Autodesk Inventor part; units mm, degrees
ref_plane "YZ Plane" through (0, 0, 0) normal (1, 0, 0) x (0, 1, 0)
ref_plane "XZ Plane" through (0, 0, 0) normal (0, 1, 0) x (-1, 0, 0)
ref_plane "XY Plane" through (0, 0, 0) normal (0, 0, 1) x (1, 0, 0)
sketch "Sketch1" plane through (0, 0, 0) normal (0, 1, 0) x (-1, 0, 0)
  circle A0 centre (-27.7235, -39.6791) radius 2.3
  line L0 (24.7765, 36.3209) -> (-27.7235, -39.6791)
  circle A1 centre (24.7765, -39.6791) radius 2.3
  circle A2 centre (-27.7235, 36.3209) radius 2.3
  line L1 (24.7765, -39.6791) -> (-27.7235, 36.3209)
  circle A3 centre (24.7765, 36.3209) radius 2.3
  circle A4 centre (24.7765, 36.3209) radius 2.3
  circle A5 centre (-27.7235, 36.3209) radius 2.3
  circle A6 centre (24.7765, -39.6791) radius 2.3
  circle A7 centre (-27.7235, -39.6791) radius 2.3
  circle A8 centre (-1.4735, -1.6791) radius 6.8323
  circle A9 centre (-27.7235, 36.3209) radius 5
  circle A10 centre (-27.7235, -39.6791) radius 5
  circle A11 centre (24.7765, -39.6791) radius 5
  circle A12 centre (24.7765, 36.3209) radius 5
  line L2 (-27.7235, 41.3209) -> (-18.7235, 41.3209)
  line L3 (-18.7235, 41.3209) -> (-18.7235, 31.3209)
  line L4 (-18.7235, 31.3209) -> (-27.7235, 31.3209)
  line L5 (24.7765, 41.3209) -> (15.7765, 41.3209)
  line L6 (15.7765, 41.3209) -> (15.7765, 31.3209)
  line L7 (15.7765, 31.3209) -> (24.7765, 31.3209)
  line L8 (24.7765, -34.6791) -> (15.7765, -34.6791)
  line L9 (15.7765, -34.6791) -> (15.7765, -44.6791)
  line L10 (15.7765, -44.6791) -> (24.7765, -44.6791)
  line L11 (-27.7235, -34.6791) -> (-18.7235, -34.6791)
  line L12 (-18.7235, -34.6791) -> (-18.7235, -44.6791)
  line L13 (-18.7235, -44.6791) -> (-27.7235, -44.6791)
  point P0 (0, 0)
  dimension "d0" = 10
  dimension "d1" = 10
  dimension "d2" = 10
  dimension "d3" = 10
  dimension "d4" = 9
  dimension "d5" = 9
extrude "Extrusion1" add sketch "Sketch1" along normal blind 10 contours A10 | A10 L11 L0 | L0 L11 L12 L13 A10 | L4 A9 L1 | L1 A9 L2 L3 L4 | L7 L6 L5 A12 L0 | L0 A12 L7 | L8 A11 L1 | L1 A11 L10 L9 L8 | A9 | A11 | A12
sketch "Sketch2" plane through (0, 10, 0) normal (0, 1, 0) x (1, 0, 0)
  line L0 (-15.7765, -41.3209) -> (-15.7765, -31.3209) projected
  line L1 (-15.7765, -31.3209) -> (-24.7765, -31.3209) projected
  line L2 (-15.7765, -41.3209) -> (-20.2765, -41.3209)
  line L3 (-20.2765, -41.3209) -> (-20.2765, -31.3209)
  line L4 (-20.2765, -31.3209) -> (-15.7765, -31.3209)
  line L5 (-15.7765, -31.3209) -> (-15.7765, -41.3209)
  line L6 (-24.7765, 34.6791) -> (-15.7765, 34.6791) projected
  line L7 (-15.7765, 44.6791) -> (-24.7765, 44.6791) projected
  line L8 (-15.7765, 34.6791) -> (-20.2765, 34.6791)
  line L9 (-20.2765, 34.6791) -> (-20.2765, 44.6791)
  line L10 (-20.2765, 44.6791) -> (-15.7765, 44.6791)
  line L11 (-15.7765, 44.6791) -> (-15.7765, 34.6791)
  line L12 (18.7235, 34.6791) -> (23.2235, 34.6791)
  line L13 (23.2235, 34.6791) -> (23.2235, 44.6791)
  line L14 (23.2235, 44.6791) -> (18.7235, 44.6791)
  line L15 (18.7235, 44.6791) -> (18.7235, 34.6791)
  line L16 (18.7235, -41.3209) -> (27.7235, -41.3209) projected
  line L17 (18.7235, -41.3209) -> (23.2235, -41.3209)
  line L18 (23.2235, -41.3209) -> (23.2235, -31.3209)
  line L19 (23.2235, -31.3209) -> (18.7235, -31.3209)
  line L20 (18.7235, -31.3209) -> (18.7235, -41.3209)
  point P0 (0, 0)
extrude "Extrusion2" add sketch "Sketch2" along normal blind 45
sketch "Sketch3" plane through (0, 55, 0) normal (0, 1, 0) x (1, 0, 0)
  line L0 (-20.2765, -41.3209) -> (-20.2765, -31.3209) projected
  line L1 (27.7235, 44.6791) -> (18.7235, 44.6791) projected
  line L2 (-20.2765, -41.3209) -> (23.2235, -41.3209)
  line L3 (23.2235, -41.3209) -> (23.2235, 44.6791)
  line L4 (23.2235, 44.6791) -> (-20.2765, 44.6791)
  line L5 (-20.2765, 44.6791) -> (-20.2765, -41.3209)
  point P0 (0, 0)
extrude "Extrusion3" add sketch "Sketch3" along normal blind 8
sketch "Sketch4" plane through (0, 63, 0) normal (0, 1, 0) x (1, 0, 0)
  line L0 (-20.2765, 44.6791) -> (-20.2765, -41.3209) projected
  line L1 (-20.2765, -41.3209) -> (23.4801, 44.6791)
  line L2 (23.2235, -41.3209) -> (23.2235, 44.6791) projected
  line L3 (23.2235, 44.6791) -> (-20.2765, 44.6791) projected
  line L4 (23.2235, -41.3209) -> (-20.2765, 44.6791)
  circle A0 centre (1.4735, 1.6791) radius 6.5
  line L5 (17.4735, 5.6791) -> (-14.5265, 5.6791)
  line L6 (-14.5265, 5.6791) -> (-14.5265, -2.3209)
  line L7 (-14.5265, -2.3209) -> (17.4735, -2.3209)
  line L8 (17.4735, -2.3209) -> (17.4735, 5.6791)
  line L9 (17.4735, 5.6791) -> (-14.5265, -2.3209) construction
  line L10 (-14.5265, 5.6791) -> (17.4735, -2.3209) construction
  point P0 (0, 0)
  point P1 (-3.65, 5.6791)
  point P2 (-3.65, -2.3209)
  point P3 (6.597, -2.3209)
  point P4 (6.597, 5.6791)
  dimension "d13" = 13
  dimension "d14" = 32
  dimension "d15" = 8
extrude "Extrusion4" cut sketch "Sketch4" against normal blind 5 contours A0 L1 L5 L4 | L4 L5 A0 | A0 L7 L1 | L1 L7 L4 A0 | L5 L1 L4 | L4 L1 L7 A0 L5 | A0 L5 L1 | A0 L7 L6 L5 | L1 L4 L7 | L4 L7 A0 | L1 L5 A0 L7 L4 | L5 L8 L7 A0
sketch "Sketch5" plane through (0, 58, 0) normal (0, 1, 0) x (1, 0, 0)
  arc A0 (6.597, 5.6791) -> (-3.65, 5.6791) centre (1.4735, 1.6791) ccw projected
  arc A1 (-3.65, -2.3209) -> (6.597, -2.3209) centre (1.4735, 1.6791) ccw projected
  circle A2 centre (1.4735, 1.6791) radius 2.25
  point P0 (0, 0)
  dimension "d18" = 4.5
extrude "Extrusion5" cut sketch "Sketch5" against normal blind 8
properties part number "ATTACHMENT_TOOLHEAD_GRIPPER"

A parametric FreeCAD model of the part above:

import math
import FreeCAD as App
import Part
import Sketcher
from FreeCAD import Vector
Q = App.Units.Quantity

doc = App.newDocument("Part")
params = doc.addObject("Spreadsheet::Sheet", "Params")
for row, (alias, value) in enumerate([
    ("sketch1_radius", "5 mm"),
    ("sketch1_width", "9 mm"),
    ("sketch1_diameter", "4.6 mm"),
    ("pad1_length", "10 mm"),
    ("sketch2_height", "10 mm"),
    ("sketch2_width", "4.5 mm"),
    ("pad2_length", "45 mm"),
    ("sketch3_height", "86 mm"),
    ("sketch3_width", "43.5 mm"),
    ("pad3_length", "8 mm"),
    ("sketch4_radius", "6.5 mm"),
    ("sketch4_height", "8 mm"),
    ("pocket1_length", "5 mm"),
    ("sketch5_diameter", "4.5 mm"),
    ("pocket2_length", "8 mm"),
], start=1):
    params.set(f"A{row}", alias)
    params.set(f"B{row}", "=" + value)
    params.setAlias(f"B{row}", alias)

body = doc.addObject("PartDesign::Body", "Body")
body.AllowCompound = True

sketch1 = body.newObject("Sketcher::SketchObject", "Sketch")
sketch1.AttachmentSupport = (doc.getObject("XZ_Plane"), [""])
sketch1.MapMode = "FlatFace"
sketch1.addGeometry(Part.ArcOfCircle(Part.Circle(Vector(27.7, -39.7, 0), Vector(0, 0, 1), 5), math.radians(-90), math.radians(90)), False)
sketch1.addGeometry(Part.LineSegment(Vector(27.7, -44.7, 0), Vector(18.7, -44.7, 0)), False)
sketch1.addGeometry(Part.LineSegment(Vector(18.7, -44.7, 0), Vector(18.7, -34.7, 0)), False)
sketch1.addGeometry(Part.LineSegment(Vector(18.7, -34.7, 0), Vector(27.7, -34.7, 0)), False)
sketch1.addGeometry(Part.Circle(Vector(27.7, -39.7, 0), Vector(0, 0, 1), 2.3), False)
sketch1.addGeometry(Part.LineSegment(Vector(27.7, 31.3, 0), Vector(18.7, 31.3, 0)), False)
sketch1.addGeometry(Part.LineSegment(Vector(18.7, 31.3, 0), Vector(18.7, 41.3, 0)), False)
sketch1.addGeometry(Part.LineSegment(Vector(18.7, 41.3, 0), Vector(27.7, 41.3, 0)), False)
sketch1.addGeometry(Part.ArcOfCircle(Part.Circle(Vector(27.7, 36.3, 0), Vector(0, 0, 1), 5), math.radians(-90), math.radians(90)), False)
sketch1.addGeometry(Part.Circle(Vector(27.7, 36.3, 0), Vector(0, 0, 1), 2.3), False)
sketch1.addGeometry(Part.LineSegment(Vector(-15.8, 31.3, 0), Vector(-24.8, 31.3, 0)), False)
sketch1.addGeometry(Part.ArcOfCircle(Part.Circle(Vector(-24.8, 36.3, 0), Vector(0, 0, 1), 5), math.radians(90), math.radians(270)), False)
sketch1.addGeometry(Part.LineSegment(Vector(-24.8, 41.3, 0), Vector(-15.8, 41.3, 0)), False)
sketch1.addGeometry(Part.LineSegment(Vector(-15.8, 41.3, 0), Vector(-15.8, 31.3, 0)), False)
sketch1.addGeometry(Part.Circle(Vector(-24.8, 36.3, 0), Vector(0, 0, 1), 2.3), False)
sketch1.addGeometry(Part.LineSegment(Vector(-24.8, -34.7, 0), Vector(-15.8, -34.7, 0)), False)
sketch1.addGeometry(Part.LineSegment(Vector(-15.8, -34.7, 0), Vector(-15.8, -44.7, 0)), False)
sketch1.addGeometry(Part.LineSegment(Vector(-15.8, -44.7, 0), Vector(-24.8, -44.7, 0)), False)
sketch1.addGeometry(Part.ArcOfCircle(Part.Circle(Vector(-24.8, -39.7, 0), Vector(0, 0, 1), 5), math.radians(90), math.radians(270)), False)
sketch1.addGeometry(Part.Circle(Vector(-24.8, -39.7, 0), Vector(0, 0, 1), 2.3), False)
sketch1.addConstraint(Sketcher.Constraint("Tangent", 0, 1, 1, 1))
sketch1.addConstraint(Sketcher.Constraint("Coincident", 1, 2, 2, 1))
sketch1.addConstraint(Sketcher.Constraint("Coincident", 2, 2, 3, 1))
sketch1.addConstraint(Sketcher.Constraint("Tangent", 3, 2, 0, 2))
sketch1.addConstraint(Sketcher.Constraint("Coincident", 5, 2, 6, 1))
sketch1.addConstraint(Sketcher.Constraint("Coincident", 6, 2, 7, 1))
sketch1.addConstraint(Sketcher.Constraint("Tangent", 7, 2, 8, 2))
sketch1.addConstraint(Sketcher.Constraint("Tangent", 8, 1, 5, 1))
sketch1.addConstraint(Sketcher.Constraint("Tangent", 10, 2, 11, 2))
sketch1.addConstraint(Sketcher.Constraint("Tangent", 11, 1, 12, 1))
sketch1.addConstraint(Sketcher.Constraint("Coincident", 12, 2, 13, 1))
sketch1.addConstraint(Sketcher.Constraint("Coincident", 13, 2, 10, 1))
sketch1.addConstraint(Sketcher.Constraint("Coincident", 15, 2, 16, 1))
sketch1.addConstraint(Sketcher.Constraint("Coincident", 16, 2, 17, 1))
sketch1.addConstraint(Sketcher.Constraint("Tangent", 17, 2, 18, 2))
sketch1.addConstraint(Sketcher.Constraint("Tangent", 18, 1, 15, 1))
sketch1.addConstraint(Sketcher.Constraint("Horizontal", 1))
sketch1.addConstraint(Sketcher.Constraint("Vertical", 2))
sketch1.addConstraint(Sketcher.Constraint("Horizontal", 3))
sketch1.addConstraint(Sketcher.Constraint("Horizontal", 5))
sketch1.addConstraint(Sketcher.Constraint("Vertical", 6))
sketch1.addConstraint(Sketcher.Constraint("Horizontal", 7))
sketch1.addConstraint(Sketcher.Constraint("Horizontal", 10))
sketch1.addConstraint(Sketcher.Constraint("Horizontal", 12))
sketch1.addConstraint(Sketcher.Constraint("Vertical", 13))
sketch1.addConstraint(Sketcher.Constraint("Horizontal", 15))
sketch1.addConstraint(Sketcher.Constraint("Vertical", 16))
sketch1.addConstraint(Sketcher.Constraint("Horizontal", 17))
sketch1.addConstraint(Sketcher.Constraint("Coincident", 4, 3, 0, 3))
sketch1.addConstraint(Sketcher.Constraint("Coincident", 9, 3, 8, 3))
sketch1.addConstraint(Sketcher.Constraint("Coincident", 14, 3, 11, 3))
sketch1.addConstraint(Sketcher.Constraint("Coincident", 19, 3, 18, 3))
sketch1.addConstraint(Sketcher.Constraint("Equal", 0, 8))
sketch1.addConstraint(Sketcher.Constraint("Equal", 4, 9))
sketch1.addConstraint(Sketcher.Constraint("Equal", 8, 11))
sketch1.addConstraint(Sketcher.Constraint("Equal", 9, 14))
sketch1.addConstraint(Sketcher.Constraint("Equal", 11, 18))
sketch1.addConstraint(Sketcher.Constraint("Equal", 14, 19))
sketch1.addConstraint(Sketcher.Constraint("Horizontal", 9, 3, 11, 3))
sketch1.addConstraint(Sketcher.Constraint("Horizontal", 4, 3, 18, 3))
sketch1.addConstraint(Sketcher.Constraint("Vertical", 4, 3, 8, 3))
sketch1.addConstraint(Sketcher.Constraint("Vertical", 14, 3, 18, 3))
sketch1.addConstraint(Sketcher.Constraint("Vertical", 2, 2, 5, 2))
sketch1.addConstraint(Sketcher.Constraint("Vertical", 13, 2, 15, 2))
sketch1.addConstraint(Sketcher.Constraint("Equal", 7, 10))
sketch1.addConstraint(Sketcher.Constraint("Radius", 0, Q("5 mm")))
sketch1.addConstraint(Sketcher.Constraint("DistanceX", 1, 2, 1, 1, Q("9 mm")))
sketch1.addConstraint(Sketcher.Constraint("Diameter", 4, Q("4.6 mm")))
sketch1.addConstraint(Sketcher.Constraint("DistanceY", 0, 3, 8, 3, Q("76 mm")))
sketch1.addConstraint(Sketcher.Constraint("DistanceX", 11, 3, 8, 3, Q("52.5 mm")))
sketch1.addConstraint(Sketcher.Constraint("DistanceY", 0, 3, -1, 1, Q("39.679 mm")))
sketch1.addConstraint(Sketcher.Constraint("DistanceX", -1, 1, 0, 3, Q("27.7235 mm")))
sketch1.setExpression("Constraints[45]", "Params.sketch1_radius")
sketch1.setExpression("Constraints[46]", "Params.sketch1_width")
sketch1.setExpression("Constraints[47]", "Params.sketch1_diameter")
pad1 = body.newObject("PartDesign::Pad", "Pad")
pad1.Profile = sketch1
pad1.setExpression("Length", "Params.pad1_length")
pad1.Reversed = True

sketch2 = body.newObject("Sketcher::SketchObject", "Sketch001")
sketch2.AttachmentSupport = (doc.getObject("XZ_Plane"), [""])
sketch2.MapMode = "FlatFace"
sketch2.AttachmentOffset = App.Placement(Vector(0, 0, -10), App.Rotation())
sketch2.addGeometry(Part.LineSegment(Vector(-20.3, 41.3, 0), Vector(-15.8, 41.3, 0)), False)
sketch2.addGeometry(Part.LineSegment(Vector(-15.8, 41.3, 0), Vector(-15.8, 31.3, 0)), False)
sketch2.addGeometry(Part.LineSegment(Vector(-15.8, 31.3, 0), Vector(-20.3, 31.3, 0)), False)
sketch2.addGeometry(Part.LineSegment(Vector(-20.3, 31.3, 0), Vector(-20.3, 41.3, 0)), False)
sketch2.addGeometry(Part.LineSegment(Vector(-20.3, -44.7, 0), Vector(-20.3, -34.7, 0)), False)
sketch2.addGeometry(Part.LineSegment(Vector(-20.3, -34.7, 0), Vector(-15.8, -34.7, 0)), False)
sketch2.addGeometry(Part.LineSegment(Vector(-15.8, -34.7, 0), Vector(-15.8, -44.7, 0)), False)
sketch2.addGeometry(Part.LineSegment(Vector(-15.8, -44.7, 0), Vector(-20.3, -44.7, 0)), False)
sketch2.addGeometry(Part.LineSegment(Vector(18.7, -44.7, 0), Vector(18.7, -34.7, 0)), False)
sketch2.addGeometry(Part.LineSegment(Vector(18.7, -34.7, 0), Vector(23.2, -34.7, 0)), False)
sketch2.addGeometry(Part.LineSegment(Vector(23.2, -34.7, 0), Vector(23.2, -44.7, 0)), False)
sketch2.addGeometry(Part.LineSegment(Vector(23.2, -44.7, 0), Vector(18.7, -44.7, 0)), False)
sketch2.addGeometry(Part.LineSegment(Vector(18.7, 31.3, 0), Vector(18.7, 41.3, 0)), False)
sketch2.addGeometry(Part.LineSegment(Vector(18.7, 41.3, 0), Vector(23.2, 41.3, 0)), False)
sketch2.addGeometry(Part.LineSegment(Vector(23.2, 41.3, 0), Vector(23.2, 31.3, 0)), False)
sketch2.addGeometry(Part.LineSegment(Vector(23.2, 31.3, 0), Vector(18.7, 31.3, 0)), False)
sketch2.addConstraint(Sketcher.Constraint("Coincident", 0, 2, 1, 1))
sketch2.addConstraint(Sketcher.Constraint("Coincident", 1, 2, 2, 1))
sketch2.addConstraint(Sketcher.Constraint("Coincident", 2, 2, 3, 1))
sketch2.addConstraint(Sketcher.Constraint("Coincident", 3, 2, 0, 1))
sketch2.addConstraint(Sketcher.Constraint("Coincident", 4, 2, 5, 1))
sketch2.addConstraint(Sketcher.Constraint("Coincident", 5, 2, 6, 1))
sketch2.addConstraint(Sketcher.Constraint("Coincident", 6, 2, 7, 1))
sketch2.addConstraint(Sketcher.Constraint("Coincident", 7, 2, 4, 1))
sketch2.addConstraint(Sketcher.Constraint("Coincident", 8, 2, 9, 1))
sketch2.addConstraint(Sketcher.Constraint("Coincident", 9, 2, 10, 1))
sketch2.addConstraint(Sketcher.Constraint("Coincident", 10, 2, 11, 1))
sketch2.addConstraint(Sketcher.Constraint("Coincident", 11, 2, 8, 1))
sketch2.addConstraint(Sketcher.Constraint("Coincident", 12, 2, 13, 1))
sketch2.addConstraint(Sketcher.Constraint("Coincident", 13, 2, 14, 1))
sketch2.addConstraint(Sketcher.Constraint("Coincident", 14, 2, 15, 1))
sketch2.addConstraint(Sketcher.Constraint("Coincident", 15, 2, 12, 1))
sketch2.addConstraint(Sketcher.Constraint("Horizontal", 0))
sketch2.addConstraint(Sketcher.Constraint("Vertical", 1))
sketch2.addConstraint(Sketcher.Constraint("Horizontal", 2))
sketch2.addConstraint(Sketcher.Constraint("Vertical", 3))
sketch2.addConstraint(Sketcher.Constraint("Vertical", 4))
sketch2.addConstraint(Sketcher.Constraint("Horizontal", 5))
sketch2.addConstraint(Sketcher.Constraint("Vertical", 6))
sketch2.addConstraint(Sketcher.Constraint("Horizontal", 7))
sketch2.addConstraint(Sketcher.Constraint("Vertical", 8))
sketch2.addConstraint(Sketcher.Constraint("Horizontal", 9))
sketch2.addConstraint(Sketcher.Constraint("Vertical", 10))
sketch2.addConstraint(Sketcher.Constraint("Horizontal", 11))
sketch2.addConstraint(Sketcher.Constraint("Vertical", 12))
sketch2.addConstraint(Sketcher.Constraint("Horizontal", 13))
sketch2.addConstraint(Sketcher.Constraint("Vertical", 14))
sketch2.addConstraint(Sketcher.Constraint("Horizontal", 15))
sketch2.addConstraint(Sketcher.Constraint("Horizontal", 5, 2, 8, 2))
sketch2.addConstraint(Sketcher.Constraint("Horizontal", 7, 2, 10, 2))
sketch2.addConstraint(Sketcher.Constraint("Horizontal", 3, 2, 12, 2))
sketch2.addConstraint(Sketcher.Constraint("Horizontal", 2, 2, 14, 2))
sketch2.addConstraint(Sketcher.Constraint("Vertical", 3, 2, 4, 2))
sketch2.addConstraint(Sketcher.Constraint("Vertical", 1, 2, 5, 2))
sketch2.addConstraint(Sketcher.Constraint("Vertical", 11, 2, 12, 2))
sketch2.addConstraint(Sketcher.Constraint("Vertical", 10, 2, 13, 2))
sketch2.addConstraint(Sketcher.Constraint("Equal", 7, 9))
sketch2.addConstraint(Sketcher.Constraint("Equal", 3, 4))
sketch2.addConstraint(Sketcher.Constraint("DistanceY", 1, 2, 1, 1, Q("10 mm")))
sketch2.addConstraint(Sketcher.Constraint("DistanceX", 0, 1, 0, 2, Q("4.5 mm")))
sketch2.addConstraint(Sketcher.Constraint("DistanceY", 4, 2, 2, 2, Q("66 mm")))
sketch2.addConstraint(Sketcher.Constraint("DistanceX", 4, 2, 8, 2, Q("39 mm")))
sketch2.addConstraint(Sketcher.Constraint("DistanceY", -1, 1, 0, 2, Q("41.321 mm")))
sketch2.addConstraint(Sketcher.Constraint("DistanceX", 0, 2, -1, 1, Q("15.7765 mm")))
sketch2.setExpression("Constraints[42]", "Params.sketch2_height")
sketch2.setExpression("Constraints[43]", "Params.sketch2_width")
pad2 = body.newObject("PartDesign::Pad", "Pad001")
pad2.Profile = sketch2
pad2.setExpression("Length", "Params.pad2_length")
pad2.Reversed = True

sketch3 = body.newObject("Sketcher::SketchObject", "Sketch002")
sketch3.AttachmentSupport = (doc.getObject("XZ_Plane"), [""])
sketch3.MapMode = "FlatFace"
sketch3.AttachmentOffset = App.Placement(Vector(0, 0, -55), App.Rotation())
sketch3.addGeometry(Part.LineSegment(Vector(-20, -45, 0), Vector(-20, 41, 0)), False)
sketch3.addGeometry(Part.LineSegment(Vector(-20, 41, 0), Vector(23, 41, 0)), False)
sketch3.addGeometry(Part.LineSegment(Vector(23, 41, 0), Vector(23, -45, 0)), False)
sketch3.addGeometry(Part.LineSegment(Vector(23, -45, 0), Vector(-20, -45, 0)), False)
sketch3.addConstraint(Sketcher.Constraint("Coincident", 0, 2, 1, 1))
sketch3.addConstraint(Sketcher.Constraint("Coincident", 1, 2, 2, 1))
sketch3.addConstraint(Sketcher.Constraint("Coincident", 2, 2, 3, 1))
sketch3.addConstraint(Sketcher.Constraint("Coincident", 3, 2, 0, 1))
sketch3.addConstraint(Sketcher.Constraint("Vertical", 0))
sketch3.addConstraint(Sketcher.Constraint("Horizontal", 1))
sketch3.addConstraint(Sketcher.Constraint("Vertical", 2))
sketch3.addConstraint(Sketcher.Constraint("Horizontal", 3))
sketch3.addConstraint(Sketcher.Constraint("DistanceY", 0, 1, 0, 2, Q("86 mm")))
sketch3.addConstraint(Sketcher.Constraint("DistanceX", 1, 1, 1, 2, Q("43.5 mm")))
sketch3.addConstraint(Sketcher.Constraint("DistanceY", -1, 1, 0, 2, Q("41.321 mm")))
sketch3.addConstraint(Sketcher.Constraint("DistanceX", 0, 2, -1, 1, Q("20.2765 mm")))
sketch3.setExpression("Constraints[8]", "Params.sketch3_height")
sketch3.setExpression("Constraints[9]", "Params.sketch3_width")
pad3 = body.newObject("PartDesign::Pad", "Pad002")
pad3.Profile = sketch3
pad3.setExpression("Length", "Params.pad3_length")
pad3.Reversed = True

sketch4 = body.newObject("Sketcher::SketchObject", "Sketch003")
sketch4.AttachmentSupport = (doc.getObject("XZ_Plane"), [""])
sketch4.MapMode = "FlatFace"
sketch4.AttachmentOffset = App.Placement(Vector(0, 0, -63), App.Rotation())
sketch4.addGeometry(Part.LineSegment(Vector(-4, -6, 0), Vector(-15, -6, 0)), False)
sketch4.addGeometry(Part.LineSegment(Vector(-15, -6, 0), Vector(-15, 2, 0)), False)
sketch4.addGeometry(Part.LineSegment(Vector(-15, 2, 0), Vector(-4, 2, 0)), False)
sketch4.addGeometry(Part.ArcOfCircle(Part.Circle(Vector(1, -2, 0), Vector(0, 0, 1), 6), math.radians(38), math.radians(142)), False)
sketch4.addGeometry(Part.LineSegment(Vector(7, 2, 0), Vector(17, 2, 0)), False)
sketch4.addGeometry(Part.LineSegment(Vector(17, 2, 0), Vector(17, -6, 0)), False)
sketch4.addGeometry(Part.LineSegment(Vector(17, -6, 0), Vector(7, -6, 0)), False)
sketch4.addGeometry(Part.ArcOfCircle(Part.Circle(Vector(1, -2, 0), Vector(0, 0, 1), 6), math.radians(-142), math.radians(-38)), False)
sketch4.addConstraint(Sketcher.Constraint("Coincident", 0, 2, 1, 1))
sketch4.addConstraint(Sketcher.Constraint("Coincident", 1, 2, 2, 1))
sketch4.addConstraint(Sketcher.Constraint("Coincident", 2, 2, 3, 2))
sketch4.addConstraint(Sketcher.Constraint("Coincident", 3, 1, 4, 1))
sketch4.addConstraint(Sketcher.Constraint("Coincident", 4, 2, 5, 1))
sketch4.addConstraint(Sketcher.Constraint("Coincident", 5, 2, 6, 1))
sketch4.addConstraint(Sketcher.Constraint("Coincident", 6, 2, 7, 2))
sketch4.addConstraint(Sketcher.Constraint("Coincident", 7, 1, 0, 1))
sketch4.addConstraint(Sketcher.Constraint("Horizontal", 0))
sketch4.addConstraint(Sketcher.Constraint("Vertical", 1))
sketch4.addConstraint(Sketcher.Constraint("Horizontal", 2))
sketch4.addConstraint(Sketcher.Constraint("Horizontal", 4))
sketch4.addConstraint(Sketcher.Constraint("Vertical", 5))
sketch4.addConstraint(Sketcher.Constraint("Horizontal", 6))
sketch4.addConstraint(Sketcher.Constraint("Coincident", 7, 3, 3, 3))
sketch4.addConstraint(Sketcher.Constraint("Equal", 3, 7))
sketch4.addConstraint(Sketcher.Constraint("Horizontal", 2, 2, 3, 1))
sketch4.addConstraint(Sketcher.Constraint("Horizontal", 0, 2, 5, 2))
sketch4.addConstraint(Sketcher.Constraint("Vertical", 3, 1, 6, 2))
sketch4.addConstraint(Sketcher.Constraint("Equal", 2, 4))
sketch4.addConstraint(Sketcher.Constraint("Radius", 3, Q("6.5 mm")))
sketch4.addConstraint(Sketcher.Constraint("DistanceY", 1, 1, 1, 2, Q("8 mm")))
sketch4.addConstraint(Sketcher.Constraint("DistanceX", 1, 2, 4, 2, Q("32 mm")))
sketch4.addConstraint(Sketcher.Constraint("DistanceX", 2, 2, -1, 1, Q("3.65 mm")))
sketch4.addConstraint(Sketcher.Constraint("DistanceY", 3, 3, -1, 1, Q("1.679 mm")))
sketch4.setExpression("Constraints[20]", "Params.sketch4_radius")
sketch4.setExpression("Constraints[21]", "Params.sketch4_height")
pocket1 = body.newObject("PartDesign::Pocket", "Pocket")
pocket1.Profile = sketch4
pocket1.setExpression("Length", "Params.pocket1_length")
pocket1.Reversed = True

sketch5 = body.newObject("Sketcher::SketchObject", "Sketch004")
sketch5.AttachmentSupport = (doc.getObject("XZ_Plane"), [""])
sketch5.MapMode = "FlatFace"
sketch5.AttachmentOffset = App.Placement(Vector(0, 0, -58), App.Rotation())
sketch5.addGeometry(Part.Circle(Vector(1.5, -1.7, 0), Vector(0, 0, 1), 2.2), False)
sketch5.addConstraint(Sketcher.Constraint("Diameter", 0, Q("4.5 mm")))
sketch5.addConstraint(Sketcher.Constraint("DistanceY", 0, 3, -1, 1, Q("1.679 mm")))
sketch5.addConstraint(Sketcher.Constraint("DistanceX", -1, 1, 0, 3, Q("1.4735 mm")))
sketch5.setExpression("Constraints[0]", "Params.sketch5_diameter")
pocket2 = body.newObject("PartDesign::Pocket", "Pocket001")
pocket2.Profile = sketch5
pocket2.setExpression("Length", "Params.pocket2_length")
pocket2.Reversed = True

doc.recompute()
